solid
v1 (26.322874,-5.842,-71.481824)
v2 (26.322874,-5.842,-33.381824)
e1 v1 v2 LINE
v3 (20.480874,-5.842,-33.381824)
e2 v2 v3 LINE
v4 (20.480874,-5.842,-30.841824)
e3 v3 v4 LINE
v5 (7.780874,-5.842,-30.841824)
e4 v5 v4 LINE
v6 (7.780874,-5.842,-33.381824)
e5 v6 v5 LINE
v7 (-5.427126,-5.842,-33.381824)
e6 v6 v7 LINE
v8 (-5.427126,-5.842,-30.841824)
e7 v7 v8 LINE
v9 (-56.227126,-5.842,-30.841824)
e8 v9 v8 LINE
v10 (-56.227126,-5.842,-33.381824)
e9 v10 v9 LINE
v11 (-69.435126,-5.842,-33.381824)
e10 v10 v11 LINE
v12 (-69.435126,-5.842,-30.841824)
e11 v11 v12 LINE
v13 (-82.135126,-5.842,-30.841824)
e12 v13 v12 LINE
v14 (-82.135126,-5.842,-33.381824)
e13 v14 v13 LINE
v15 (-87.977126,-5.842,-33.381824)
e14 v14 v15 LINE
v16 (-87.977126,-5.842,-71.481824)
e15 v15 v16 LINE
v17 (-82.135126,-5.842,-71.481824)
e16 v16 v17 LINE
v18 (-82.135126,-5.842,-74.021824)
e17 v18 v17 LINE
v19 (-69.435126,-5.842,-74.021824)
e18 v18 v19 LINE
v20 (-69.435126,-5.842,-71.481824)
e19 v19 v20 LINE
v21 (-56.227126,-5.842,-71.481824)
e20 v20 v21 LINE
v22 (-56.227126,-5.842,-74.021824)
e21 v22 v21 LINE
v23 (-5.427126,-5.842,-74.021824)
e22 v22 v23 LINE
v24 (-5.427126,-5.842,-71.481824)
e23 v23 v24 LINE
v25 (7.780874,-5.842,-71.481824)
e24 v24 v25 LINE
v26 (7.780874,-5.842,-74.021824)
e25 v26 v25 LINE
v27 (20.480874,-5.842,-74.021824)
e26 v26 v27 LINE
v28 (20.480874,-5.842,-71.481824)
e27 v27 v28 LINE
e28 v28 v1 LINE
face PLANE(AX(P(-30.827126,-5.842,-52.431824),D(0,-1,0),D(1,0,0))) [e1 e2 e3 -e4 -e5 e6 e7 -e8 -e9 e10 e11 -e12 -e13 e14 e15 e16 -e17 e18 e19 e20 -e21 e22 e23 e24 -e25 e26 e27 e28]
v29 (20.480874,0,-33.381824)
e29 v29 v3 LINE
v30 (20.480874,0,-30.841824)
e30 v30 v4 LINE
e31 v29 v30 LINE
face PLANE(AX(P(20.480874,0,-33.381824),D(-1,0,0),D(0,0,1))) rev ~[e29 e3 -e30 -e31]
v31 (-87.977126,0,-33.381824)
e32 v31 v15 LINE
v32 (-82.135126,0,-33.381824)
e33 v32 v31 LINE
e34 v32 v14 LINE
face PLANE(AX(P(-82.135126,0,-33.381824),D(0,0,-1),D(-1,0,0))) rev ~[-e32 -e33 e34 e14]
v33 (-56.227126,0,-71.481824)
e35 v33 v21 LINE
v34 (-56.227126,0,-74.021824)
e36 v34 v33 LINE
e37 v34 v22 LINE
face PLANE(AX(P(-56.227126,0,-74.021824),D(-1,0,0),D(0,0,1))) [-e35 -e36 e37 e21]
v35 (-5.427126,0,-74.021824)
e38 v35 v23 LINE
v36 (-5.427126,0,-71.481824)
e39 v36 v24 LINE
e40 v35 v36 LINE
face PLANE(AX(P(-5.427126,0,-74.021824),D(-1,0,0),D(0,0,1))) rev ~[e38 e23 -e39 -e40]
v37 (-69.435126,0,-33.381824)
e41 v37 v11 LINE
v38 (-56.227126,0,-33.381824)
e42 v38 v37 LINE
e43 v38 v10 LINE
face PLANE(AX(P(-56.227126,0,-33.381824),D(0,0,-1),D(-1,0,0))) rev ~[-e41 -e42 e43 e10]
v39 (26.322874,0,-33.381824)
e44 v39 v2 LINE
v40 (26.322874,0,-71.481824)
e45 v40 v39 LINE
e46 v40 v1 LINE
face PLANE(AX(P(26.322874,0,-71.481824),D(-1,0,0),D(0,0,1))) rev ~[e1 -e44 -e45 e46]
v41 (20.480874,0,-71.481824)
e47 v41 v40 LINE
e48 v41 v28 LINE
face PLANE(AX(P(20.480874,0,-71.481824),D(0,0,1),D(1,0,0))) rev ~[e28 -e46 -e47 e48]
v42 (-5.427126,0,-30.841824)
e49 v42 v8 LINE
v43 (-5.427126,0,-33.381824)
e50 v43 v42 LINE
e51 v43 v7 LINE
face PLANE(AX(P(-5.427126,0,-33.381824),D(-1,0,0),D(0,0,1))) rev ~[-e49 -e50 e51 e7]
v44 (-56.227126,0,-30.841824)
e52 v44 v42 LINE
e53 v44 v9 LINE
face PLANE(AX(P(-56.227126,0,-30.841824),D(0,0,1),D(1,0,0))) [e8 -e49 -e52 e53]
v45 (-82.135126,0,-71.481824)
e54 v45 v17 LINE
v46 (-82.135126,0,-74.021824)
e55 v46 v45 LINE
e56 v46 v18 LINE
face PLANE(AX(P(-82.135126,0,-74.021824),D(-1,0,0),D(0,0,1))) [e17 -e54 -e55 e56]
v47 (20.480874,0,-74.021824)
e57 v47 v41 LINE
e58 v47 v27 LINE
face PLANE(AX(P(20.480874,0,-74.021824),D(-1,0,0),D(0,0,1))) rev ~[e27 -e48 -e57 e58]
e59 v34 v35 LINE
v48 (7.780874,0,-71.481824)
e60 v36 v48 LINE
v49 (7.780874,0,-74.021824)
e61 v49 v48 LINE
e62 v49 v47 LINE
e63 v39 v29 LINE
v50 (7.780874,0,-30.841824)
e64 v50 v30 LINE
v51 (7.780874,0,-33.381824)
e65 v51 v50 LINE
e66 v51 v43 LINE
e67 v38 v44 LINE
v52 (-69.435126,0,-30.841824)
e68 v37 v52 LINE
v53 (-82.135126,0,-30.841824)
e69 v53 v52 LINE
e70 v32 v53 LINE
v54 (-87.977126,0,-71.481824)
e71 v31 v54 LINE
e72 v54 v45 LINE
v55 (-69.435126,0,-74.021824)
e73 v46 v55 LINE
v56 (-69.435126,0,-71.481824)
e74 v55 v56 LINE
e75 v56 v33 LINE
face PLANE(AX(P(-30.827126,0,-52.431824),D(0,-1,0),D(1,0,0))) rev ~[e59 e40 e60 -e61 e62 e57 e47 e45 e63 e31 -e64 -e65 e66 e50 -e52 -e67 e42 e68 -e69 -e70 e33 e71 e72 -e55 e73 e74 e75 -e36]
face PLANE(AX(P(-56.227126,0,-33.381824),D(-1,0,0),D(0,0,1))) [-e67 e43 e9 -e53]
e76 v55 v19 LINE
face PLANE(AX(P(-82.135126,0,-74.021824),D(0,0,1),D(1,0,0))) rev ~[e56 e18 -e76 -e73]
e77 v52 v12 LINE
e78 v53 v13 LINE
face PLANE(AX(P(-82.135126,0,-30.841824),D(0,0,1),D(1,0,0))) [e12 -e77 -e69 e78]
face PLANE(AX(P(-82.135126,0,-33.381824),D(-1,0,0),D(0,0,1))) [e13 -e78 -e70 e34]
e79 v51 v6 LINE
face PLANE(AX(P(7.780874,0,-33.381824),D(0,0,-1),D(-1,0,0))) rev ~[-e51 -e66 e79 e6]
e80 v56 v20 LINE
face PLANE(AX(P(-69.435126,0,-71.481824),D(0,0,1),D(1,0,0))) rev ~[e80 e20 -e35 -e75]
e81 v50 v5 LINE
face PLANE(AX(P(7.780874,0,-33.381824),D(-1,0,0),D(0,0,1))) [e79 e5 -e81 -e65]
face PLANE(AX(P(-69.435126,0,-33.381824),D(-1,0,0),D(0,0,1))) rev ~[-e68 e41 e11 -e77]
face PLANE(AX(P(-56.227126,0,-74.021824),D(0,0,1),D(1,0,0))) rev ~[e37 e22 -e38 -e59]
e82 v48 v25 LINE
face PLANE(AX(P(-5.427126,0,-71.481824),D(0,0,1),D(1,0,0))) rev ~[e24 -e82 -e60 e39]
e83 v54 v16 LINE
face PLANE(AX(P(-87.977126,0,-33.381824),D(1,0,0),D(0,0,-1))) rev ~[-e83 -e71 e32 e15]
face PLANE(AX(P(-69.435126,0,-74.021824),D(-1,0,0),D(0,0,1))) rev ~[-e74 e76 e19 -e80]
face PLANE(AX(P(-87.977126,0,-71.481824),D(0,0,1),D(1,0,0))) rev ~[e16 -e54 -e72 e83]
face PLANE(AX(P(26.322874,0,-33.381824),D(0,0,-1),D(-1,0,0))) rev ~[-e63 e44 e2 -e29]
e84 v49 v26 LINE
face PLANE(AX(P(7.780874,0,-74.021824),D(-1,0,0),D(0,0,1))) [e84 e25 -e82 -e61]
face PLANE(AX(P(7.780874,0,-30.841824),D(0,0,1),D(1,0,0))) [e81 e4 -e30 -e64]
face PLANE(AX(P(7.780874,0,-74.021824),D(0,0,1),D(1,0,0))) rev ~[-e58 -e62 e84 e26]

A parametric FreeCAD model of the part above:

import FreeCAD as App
import Part
import Sketcher
Q = App.Units.Quantity

doc = App.newDocument("Part")
body = doc.addObject("PartDesign::Body", "Body")

# Sketch on XZ plane
sketch1 = body.newObject("Sketcher::SketchObject", "Sketch")
sketch1.AttachmentSupport = (doc.getObject("XZ_Plane"), [""])
sketch1.MapMode = "FlatFace"
sketch1.addGeometry([
    Part.LineSegment(App.Vector(-88, -33.4, 0), App.Vector(-88, -71.5, 0)),  # 0
    Part.LineSegment(App.Vector(-88, -71.5, 0), App.Vector(-82.1, -71.5, 0)),  # 1
    Part.LineSegment(App.Vector(-82.1, -71.5, 0), App.Vector(-82.1, -74, 0)),  # 2
    Part.LineSegment(App.Vector(-82.1, -74, 0), App.Vector(-69.4, -74, 0)),  # 3
    Part.LineSegment(App.Vector(-69.4, -74, 0), App.Vector(-69.4, -71.5, 0)),  # 4
    Part.LineSegment(App.Vector(-69.4, -71.5, 0), App.Vector(-56.2, -71.5, 0)),  # 5
    Part.LineSegment(App.Vector(-56.2, -71.5, 0), App.Vector(-56.2, -74, 0)),  # 6
    Part.LineSegment(App.Vector(-56.2, -74, 0), App.Vector(-5.4, -74, 0)),  # 7
    Part.LineSegment(App.Vector(-5.4, -74, 0), App.Vector(-5.4, -71.5, 0)),  # 8
    Part.LineSegment(App.Vector(-5.4, -71.5, 0), App.Vector(7.8, -71.5, 0)),  # 9
    Part.LineSegment(App.Vector(7.8, -71.5, 0), App.Vector(7.8, -74, 0)),  # 10
    Part.LineSegment(App.Vector(7.8, -74, 0), App.Vector(20.5, -74, 0)),  # 11
    Part.LineSegment(App.Vector(20.5, -74, 0), App.Vector(20.5, -71.5, 0)),  # 12
    Part.LineSegment(App.Vector(20.5, -71.5, 0), App.Vector(26.3, -71.5, 0)),  # 13
    Part.LineSegment(App.Vector(26.3, -71.5, 0), App.Vector(26.3, -33.4, 0)),  # 14
    Part.LineSegment(App.Vector(26.3, -33.4, 0), App.Vector(20.5, -33.4, 0)),  # 15
    Part.LineSegment(App.Vector(20.5, -33.4, 0), App.Vector(20.5, -30.8, 0)),  # 16
    Part.LineSegment(App.Vector(20.5, -30.8, 0), App.Vector(7.8, -30.8, 0)),  # 17
    Part.LineSegment(App.Vector(7.8, -30.8, 0), App.Vector(7.8, -33.4, 0)),  # 18
    Part.LineSegment(App.Vector(7.8, -33.4, 0), App.Vector(-5.4, -33.4, 0)),  # 19
    Part.LineSegment(App.Vector(-5.4, -33.4, 0), App.Vector(-5.4, -30.8, 0)),  # 20
    Part.LineSegment(App.Vector(-5.4, -30.8, 0), App.Vector(-56.2, -30.8, 0)),  # 21
    Part.LineSegment(App.Vector(-56.2, -30.8, 0), App.Vector(-56.2, -33.4, 0)),  # 22
    Part.LineSegment(App.Vector(-56.2, -33.4, 0), App.Vector(-69.4, -33.4, 0)),  # 23
    Part.LineSegment(App.Vector(-69.4, -33.4, 0), App.Vector(-69.4, -30.8, 0)),  # 24
    Part.LineSegment(App.Vector(-69.4, -30.8, 0), App.Vector(-82.1, -30.8, 0)),  # 25
    Part.LineSegment(App.Vector(-82.1, -30.8, 0), App.Vector(-82.1, -33.4, 0)),  # 26
    Part.LineSegment(App.Vector(-82.1, -33.4, 0), App.Vector(-88, -33.4, 0)),  # 27
], False)
sketch1.addConstraint([
    Sketcher.Constraint("Coincident", 0, 2, 1, 1),
    Sketcher.Constraint("Coincident", 1, 2, 2, 1),
    Sketcher.Constraint("Coincident", 2, 2, 3, 1),
    Sketcher.Constraint("Coincident", 3, 2, 4, 1),
    Sketcher.Constraint("Coincident", 4, 2, 5, 1),
    Sketcher.Constraint("Coincident", 5, 2, 6, 1),
    Sketcher.Constraint("Coincident", 6, 2, 7, 1),
    Sketcher.Constraint("Coincident", 7, 2, 8, 1),
    Sketcher.Constraint("Coincident", 8, 2, 9, 1),
    Sketcher.Constraint("Coincident", 9, 2, 10, 1),
    Sketcher.Constraint("Coincident", 10, 2, 11, 1),
    Sketcher.Constraint("Coincident", 11, 2, 12, 1),
    Sketcher.Constraint("Coincident", 12, 2, 13, 1),
    Sketcher.Constraint("Coincident", 13, 2, 14, 1),
    Sketcher.Constraint("Coincident", 14, 2, 15, 1),
    Sketcher.Constraint("Coincident", 15, 2, 16, 1),
    Sketcher.Constraint("Coincident", 16, 2, 17, 1),
    Sketcher.Constraint("Coincident", 17, 2, 18, 1),
    Sketcher.Constraint("Coincident", 18, 2, 19, 1),
    Sketcher.Constraint("Coincident", 19, 2, 20, 1),
    Sketcher.Constraint("Coincident", 20, 2, 21, 1),
    Sketcher.Constraint("Coincident", 21, 2, 22, 1),
    Sketcher.Constraint("Coincident", 22, 2, 23, 1),
    Sketcher.Constraint("Coincident", 23, 2, 24, 1),
    Sketcher.Constraint("Coincident", 24, 2, 25, 1),
    Sketcher.Constraint("Coincident", 25, 2, 26, 1),
    Sketcher.Constraint("Coincident", 26, 2, 27, 1),
    Sketcher.Constraint("Coincident", 27, 2, 0, 1),
    Sketcher.Constraint("Vertical", 0),
    Sketcher.Constraint("Horizontal", 1),
    Sketcher.Constraint("Vertical", 2),
    Sketcher.Constraint("Horizontal", 3),
    Sketcher.Constraint("Vertical", 4),
    Sketcher.Constraint("Horizontal", 5),
    Sketcher.Constraint("Vertical", 6),
    Sketcher.Constraint("Horizontal", 7),
    Sketcher.Constraint("Vertical", 8),
    Sketcher.Constraint("Horizontal", 9),
    Sketcher.Constraint("Vertical", 10),
    Sketcher.Constraint("Horizontal", 11),
    Sketcher.Constraint("Vertical", 12),
    Sketcher.Constraint("Horizontal", 13),
    Sketcher.Constraint("Vertical", 14),
    Sketcher.Constraint("Horizontal", 15),
    Sketcher.Constraint("Vertical", 16),
    Sketcher.Constraint("Horizontal", 17),
    Sketcher.Constraint("Vertical", 18),
    Sketcher.Constraint("Horizontal", 19),
    Sketcher.Constraint("Vertical", 20),
    Sketcher.Constraint("Horizontal", 21),
    Sketcher.Constraint("Vertical", 22),
    Sketcher.Constraint("Horizontal", 23),
    Sketcher.Constraint("Vertical", 24),
    Sketcher.Constraint("Horizontal", 25),
    Sketcher.Constraint("Vertical", 26),
    Sketcher.Constraint("Horizontal", 27),
    Sketcher.Constraint("Horizontal", 1, 2, 4, 2),
    Sketcher.Constraint("Horizontal", 3, 2, 6, 2),
    Sketcher.Constraint("Horizontal", 5, 2, 8, 2),
    Sketcher.Constraint("Horizontal", 7, 2, 10, 2),
    Sketcher.Constraint("Horizontal", 9, 2, 12, 2),
    Sketcher.Constraint("Horizontal", 15, 2, 18, 2),
    Sketcher.Constraint("Horizontal", 17, 2, 20, 2),
    Sketcher.Constraint("Horizontal", 19, 2, 22, 2),
    Sketcher.Constraint("Horizontal", 21, 2, 24, 2),
    Sketcher.Constraint("Horizontal", 23, 2, 26, 2),
    Sketcher.Constraint("Vertical", 12, 2, 15, 2),
    Sketcher.Constraint("Vertical", 10, 2, 17, 2),
    Sketcher.Constraint("Vertical", 8, 2, 19, 2),
    Sketcher.Constraint("Vertical", 6, 2, 21, 2),
    Sketcher.Constraint("Vertical", 4, 2, 23, 2),
    Sketcher.Constraint("Vertical", 2, 2, 25, 2),
    Sketcher.Constraint("Equal", 5, 9),
    Sketcher.Constraint("Equal", 3, 11),
    Sketcher.Constraint("Equal", 1, 13),
    Sketcher.Constraint("Equal", 12, 16),
    Sketcher.Constraint("DistanceX", 7, 1, 7, 2, Q("2 in")),
    Sketcher.Constraint("DistanceX", 3, 1, 3, 2, Q("0.5 in")),
    Sketcher.Constraint("DistanceY", 0, 2, 0, 1, Q("1.5 in")),
    Sketcher.Constraint("DistanceY", 2, 2, 2, 1, Q("0.1 in")),
    Sketcher.Constraint("DistanceX", 1, 1, 1, 2, Q("0.23 in")),
    Sketcher.Constraint("DistanceX", 5, 1, 5, 2, Q("0.52 in")),
    Sketcher.Constraint("DistanceX", 0, 2, -1, 1, 87.977126),
    Sketcher.Constraint("DistanceY", 0, 2, -1, 1, 71.481824),
])
pad1 = body.newObject("PartDesign::Pad", "Pad")
pad1.Profile = sketch1
pad1.Length = Q("0.23 in")

doc.recompute()
